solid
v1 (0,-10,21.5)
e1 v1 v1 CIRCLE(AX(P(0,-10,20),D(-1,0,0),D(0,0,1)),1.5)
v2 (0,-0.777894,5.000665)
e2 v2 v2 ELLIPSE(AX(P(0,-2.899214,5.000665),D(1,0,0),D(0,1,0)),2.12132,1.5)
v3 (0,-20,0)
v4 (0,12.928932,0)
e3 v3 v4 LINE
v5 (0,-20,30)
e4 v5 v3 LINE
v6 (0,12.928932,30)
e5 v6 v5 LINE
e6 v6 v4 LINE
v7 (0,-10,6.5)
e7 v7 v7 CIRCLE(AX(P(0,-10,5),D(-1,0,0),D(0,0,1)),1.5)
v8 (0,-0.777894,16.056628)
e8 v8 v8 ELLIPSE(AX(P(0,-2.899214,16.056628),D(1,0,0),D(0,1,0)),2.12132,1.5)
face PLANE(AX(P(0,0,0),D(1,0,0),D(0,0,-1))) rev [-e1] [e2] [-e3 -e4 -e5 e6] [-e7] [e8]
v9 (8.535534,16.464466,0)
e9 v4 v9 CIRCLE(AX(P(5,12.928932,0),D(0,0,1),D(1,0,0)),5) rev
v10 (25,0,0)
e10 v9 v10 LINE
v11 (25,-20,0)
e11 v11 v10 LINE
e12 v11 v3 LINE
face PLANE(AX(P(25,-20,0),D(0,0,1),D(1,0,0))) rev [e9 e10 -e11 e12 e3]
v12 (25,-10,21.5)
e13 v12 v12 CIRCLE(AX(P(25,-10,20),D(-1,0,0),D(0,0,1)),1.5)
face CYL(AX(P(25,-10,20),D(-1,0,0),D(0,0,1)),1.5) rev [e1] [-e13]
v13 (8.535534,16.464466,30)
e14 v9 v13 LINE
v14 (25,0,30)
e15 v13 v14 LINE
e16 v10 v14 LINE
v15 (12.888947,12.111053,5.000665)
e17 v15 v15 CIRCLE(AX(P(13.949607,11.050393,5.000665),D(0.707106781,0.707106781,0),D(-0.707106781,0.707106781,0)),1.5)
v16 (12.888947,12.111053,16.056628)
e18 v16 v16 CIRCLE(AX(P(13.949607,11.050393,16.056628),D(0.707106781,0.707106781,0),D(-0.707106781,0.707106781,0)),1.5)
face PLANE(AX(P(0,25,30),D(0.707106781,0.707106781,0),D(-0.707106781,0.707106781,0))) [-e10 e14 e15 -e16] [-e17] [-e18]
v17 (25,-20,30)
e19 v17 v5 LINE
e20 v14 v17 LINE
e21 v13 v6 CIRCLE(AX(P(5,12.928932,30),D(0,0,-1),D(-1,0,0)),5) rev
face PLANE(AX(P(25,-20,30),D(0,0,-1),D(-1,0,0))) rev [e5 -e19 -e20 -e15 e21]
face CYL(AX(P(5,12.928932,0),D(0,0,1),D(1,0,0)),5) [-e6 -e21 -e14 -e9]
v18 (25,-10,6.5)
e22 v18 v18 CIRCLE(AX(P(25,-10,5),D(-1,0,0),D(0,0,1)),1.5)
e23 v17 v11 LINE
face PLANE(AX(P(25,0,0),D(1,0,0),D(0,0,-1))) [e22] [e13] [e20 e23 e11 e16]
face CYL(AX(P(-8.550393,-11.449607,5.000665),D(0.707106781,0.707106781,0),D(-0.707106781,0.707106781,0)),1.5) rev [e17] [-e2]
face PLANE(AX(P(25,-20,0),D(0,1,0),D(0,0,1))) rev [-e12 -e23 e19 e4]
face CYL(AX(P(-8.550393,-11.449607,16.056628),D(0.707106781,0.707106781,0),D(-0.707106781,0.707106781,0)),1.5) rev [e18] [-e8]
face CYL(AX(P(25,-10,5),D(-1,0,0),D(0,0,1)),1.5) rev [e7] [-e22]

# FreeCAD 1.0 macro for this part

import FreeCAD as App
import Part
import Sketcher
from FreeCAD import Vector
Q = App.Units.Quantity


def edges_at(feature, points):
    """Names of the edges that pass closest to the given points."""
    edges = feature.Shape.Edges
    near = lambda p: min(range(len(edges)), key=lambda i: edges[i].distToShape(Part.Vertex(*p))[0])
    return sorted({f"Edge{near(p) + 1}" for p in points})

doc = App.newDocument("Part")
body = doc.addObject("PartDesign::Body", "Body")

sketch1 = body.newObject("Sketcher::SketchObject", "Sketch")
sketch1.AttachmentSupport = (doc.getObject("YZ_Plane"), [""])
sketch1.MapMode = "FlatFace"
sketch1.addGeometry([
    Part.LineSegment(Vector(0, 30, 0), Vector(-20, 30, 0)),
    Part.LineSegment(Vector(-20, 30, 0), Vector(-20, 0, 0)),
    Part.LineSegment(Vector(-20, 0, 0), Vector(0, 0, 0)),
    Part.LineSegment(Vector(0, 0, 0), Vector(0, 30, 0)),
], False)
sketch1.addConstraint([
    Sketcher.Constraint("Coincident", 0, 2, 1, 1),
    Sketcher.Constraint("Coincident", 1, 2, 2, 1),
    Sketcher.Constraint("Coincident", 2, 2, 3, 1),
    Sketcher.Constraint("Coincident", 3, 2, 0, 1),
    Sketcher.Constraint("Horizontal", 0),
    Sketcher.Constraint("Vertical", 1),
    Sketcher.Constraint("Horizontal", 2),
    Sketcher.Constraint("Vertical", 3),
    Sketcher.Constraint("Coincident", 2, 2, -1, 1),
    Sketcher.Constraint("DistanceX", 0, 2, 0, 1, Q("20 mm")),
    Sketcher.Constraint("DistanceY", 1, 2, 1, 1, Q("30 mm")),
])
pad1 = body.newObject("PartDesign::Pad", "Pad")
pad1.Profile = sketch1
pad1.Length = 25

sketch2 = body.newObject("Sketcher::SketchObject", "Sketch001")
sketch2.AttachmentSupport = (doc.getObject("XY_Plane"), [""])
sketch2.MapMode = "FlatFace"
sketch2.addGeometry([
    Part.LineSegment(Vector(0, 0, 0), Vector(0, 25, 0)),
    Part.LineSegment(Vector(0, 25, 0), Vector(25, 0, 0)),
    Part.LineSegment(Vector(25, 0, 0), Vector(0, 0, 0)),
], False)
sketch2.addConstraint([
    Sketcher.Constraint("Coincident", 0, 2, 1, 1),
    Sketcher.Constraint("Coincident", 1, 2, 2, 1),
    Sketcher.Constraint("Coincident", 2, 2, 0, 1),
    Sketcher.Constraint("Vertical", 0),
    Sketcher.Constraint("Horizontal", 2),
    Sketcher.Constraint("Coincident", 2, 2, -1, 1),
    Sketcher.Constraint("Equal", 2, 0),
    Sketcher.Constraint("DistanceX", 2, 2, 2, 1, Q("25 mm")),
])
pad2 = body.newObject("PartDesign::Pad", "Pad001")
pad2.Profile = sketch2
pad2.Length = 30
doc.recompute()

fillet = body.newObject("PartDesign::Fillet", "Fillet")
fillet.Base = (pad2, edges_at(pad2, [(0, 25, 15)]))
fillet.Radius = 5

sketch3 = body.newObject("Sketcher::SketchObject", "Sketch002")
sketch3.AttachmentSupport = (doc.getObject("YZ_Plane"), [""])
sketch3.MapMode = "FlatFace"
sketch3.addGeometry([
    Part.Circle(Vector(-10, 20, 0), Vector(0, 0, 1), 1.5),
    Part.Circle(Vector(-10, 5, 0), Vector(0, 0, 1), 1.5),
], False)
sketch3.addConstraint([
    Sketcher.Constraint("Equal", 0, 1),
    Sketcher.Constraint("Vertical", 0, 3, 1, 3),
    Sketcher.Constraint("Diameter", 0, Q("3 mm")),
    Sketcher.Constraint("DistanceX", 0, 3, -1, 1, Q("10 mm")),
    Sketcher.Constraint("DistanceY", -1, 1, 0, 3, Q("20 mm")),
    Sketcher.Constraint("DistanceY", -1, 1, 1, 3, Q("5 mm")),
])
pocket1 = body.newObject("PartDesign::Pocket", "Pocket")
pocket1.Profile = sketch3
pocket1.Type = "ThroughAll"
pocket1.Reversed = True

sketch4 = body.newObject("Sketcher::SketchObject", "Sketch003")
sketch4.Placement = App.Placement(Vector(12.5, 12.5, 0), App.Rotation(Vector(0, 0, -1), Vector(-0.707106781, 0.707106781, 0), Vector(0.707106781, 0.707106781, 0), "ZXY"))
sketch4.addGeometry([
    Part.Circle(Vector(-16.1, -2.1, 0), Vector(0, 0, 1), 1.5),
    Part.Circle(Vector(-5, -2.1, 0), Vector(0, 0, 1), 1.5),
], False)
sketch4.addConstraint([
    Sketcher.Constraint("Equal", 0, 1),
    Sketcher.Constraint("Horizontal", 0, 3, 1, 3),
    Sketcher.Constraint("Diameter", 0, Q("3 mm")),
    Sketcher.Constraint("DistanceX", 0, 3, -1, 1, Q("16.056628 mm")),
    Sketcher.Constraint("DistanceY", 0, 3, -1, 1, Q("2.050054 mm")),
    Sketcher.Constraint("DistanceX", 1, 3, -1, 1, Q("5.000665 mm")),
])
pocket2 = body.newObject("PartDesign::Pocket", "Pocket001")
pocket2.Profile = sketch4
pocket2.Type = "ThroughAll"

doc.recompute()
